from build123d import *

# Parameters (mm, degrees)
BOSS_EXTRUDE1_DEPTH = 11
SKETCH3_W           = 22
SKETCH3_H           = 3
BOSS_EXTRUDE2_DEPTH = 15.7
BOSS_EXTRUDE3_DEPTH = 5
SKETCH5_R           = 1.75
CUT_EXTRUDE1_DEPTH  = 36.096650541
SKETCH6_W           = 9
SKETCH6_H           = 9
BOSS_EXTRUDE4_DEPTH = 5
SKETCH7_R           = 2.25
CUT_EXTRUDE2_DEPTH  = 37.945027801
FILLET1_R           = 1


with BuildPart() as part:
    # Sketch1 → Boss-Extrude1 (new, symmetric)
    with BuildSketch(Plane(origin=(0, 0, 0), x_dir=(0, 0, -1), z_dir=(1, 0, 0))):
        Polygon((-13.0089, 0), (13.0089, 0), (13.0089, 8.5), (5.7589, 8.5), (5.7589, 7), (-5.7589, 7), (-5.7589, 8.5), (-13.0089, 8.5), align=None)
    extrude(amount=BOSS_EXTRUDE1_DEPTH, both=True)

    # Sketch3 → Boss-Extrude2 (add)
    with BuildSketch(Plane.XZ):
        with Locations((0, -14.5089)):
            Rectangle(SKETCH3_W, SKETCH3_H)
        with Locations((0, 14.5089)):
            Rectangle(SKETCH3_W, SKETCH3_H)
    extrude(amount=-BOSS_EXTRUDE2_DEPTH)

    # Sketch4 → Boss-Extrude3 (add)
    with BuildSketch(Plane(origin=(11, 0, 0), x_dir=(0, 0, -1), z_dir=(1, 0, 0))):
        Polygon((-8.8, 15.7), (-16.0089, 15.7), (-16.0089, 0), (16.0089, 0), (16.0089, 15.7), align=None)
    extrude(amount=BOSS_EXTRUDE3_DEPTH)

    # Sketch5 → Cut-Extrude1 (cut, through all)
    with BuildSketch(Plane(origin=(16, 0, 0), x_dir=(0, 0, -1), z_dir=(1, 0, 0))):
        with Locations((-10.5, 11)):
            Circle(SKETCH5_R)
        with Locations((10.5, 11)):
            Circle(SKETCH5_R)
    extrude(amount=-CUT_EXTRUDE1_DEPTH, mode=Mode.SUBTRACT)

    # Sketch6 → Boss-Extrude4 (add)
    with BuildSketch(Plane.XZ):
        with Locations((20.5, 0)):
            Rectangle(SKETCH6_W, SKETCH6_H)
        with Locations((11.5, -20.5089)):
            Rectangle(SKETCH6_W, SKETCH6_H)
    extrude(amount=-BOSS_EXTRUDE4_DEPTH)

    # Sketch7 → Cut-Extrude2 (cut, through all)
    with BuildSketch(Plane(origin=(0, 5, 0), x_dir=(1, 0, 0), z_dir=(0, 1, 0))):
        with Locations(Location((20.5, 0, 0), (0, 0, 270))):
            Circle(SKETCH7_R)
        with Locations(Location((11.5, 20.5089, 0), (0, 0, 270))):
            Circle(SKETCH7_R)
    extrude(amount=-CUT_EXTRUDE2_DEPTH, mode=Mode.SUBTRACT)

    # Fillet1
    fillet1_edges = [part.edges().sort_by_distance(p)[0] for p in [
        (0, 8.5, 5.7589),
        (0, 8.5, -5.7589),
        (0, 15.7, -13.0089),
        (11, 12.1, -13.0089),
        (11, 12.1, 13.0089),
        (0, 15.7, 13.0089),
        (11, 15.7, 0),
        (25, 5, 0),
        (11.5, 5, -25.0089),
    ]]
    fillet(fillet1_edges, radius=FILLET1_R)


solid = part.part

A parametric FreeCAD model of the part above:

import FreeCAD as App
import Part
import Sketcher

V = App.Vector


def edges_at(feature, points):
    """Names of the edges that pass closest to the given points."""
    edges = feature.Shape.Edges
    near = lambda p: min(range(len(edges)), key=lambda i: edges[i].distToShape(Part.Vertex(*p))[0])
    return sorted({f"Edge{near(p) + 1}" for p in points})

doc = App.newDocument("Part")
body = doc.addObject("PartDesign::Body", "Body")

sketch1 = body.newObject("Sketcher::SketchObject", "Sketch")
sketch1.AttachmentSupport = (doc.getObject("YZ_Plane"), [""])
sketch1.MapMode = "FlatFace"
sketch1.addGeometry([
    Part.LineSegment(V(0, 13, 0), V(0, -13, 0)),
    Part.LineSegment(V(0, -13, 0), V(8.5, -13, 0)),
    Part.LineSegment(V(8.5, -13, 0), V(8.5, -5.8, 0)),
    Part.LineSegment(V(8.5, -5.8, 0), V(7, -5.8, 0)),
    Part.LineSegment(V(7, -5.8, 0), V(7, 5.8, 0)),
    Part.LineSegment(V(7, 5.8, 0), V(8.5, 5.8, 0)),
    Part.LineSegment(V(8.5, 5.8, 0), V(8.5, 13, 0)),
    Part.LineSegment(V(8.5, 13, 0), V(0, 13, 0)),
], False)
sketch1.addConstraint([
    Sketcher.Constraint("Coincident", 0, 2, 1, 1),
    Sketcher.Constraint("Coincident", 1, 2, 2, 1),
    Sketcher.Constraint("Coincident", 2, 2, 3, 1),
    Sketcher.Constraint("Coincident", 3, 2, 4, 1),
    Sketcher.Constraint("Coincident", 4, 2, 5, 1),
    Sketcher.Constraint("Coincident", 5, 2, 6, 1),
    Sketcher.Constraint("Coincident", 6, 2, 7, 1),
    Sketcher.Constraint("Coincident", 7, 2, 0, 1),
    Sketcher.Constraint("Vertical", 0),
    Sketcher.Constraint("Horizontal", 1),
    Sketcher.Constraint("Vertical", 2),
    Sketcher.Constraint("Horizontal", 3),
    Sketcher.Constraint("Vertical", 4),
    Sketcher.Constraint("Horizontal", 5),
    Sketcher.Constraint("Vertical", 6),
    Sketcher.Constraint("Horizontal", 7),
    Sketcher.Constraint("Symmetric", 0, 2, 7, 2, -1, 1),
    Sketcher.Constraint("Symmetric", 2, 2, 5, 2, -1),
    Sketcher.Constraint("DistanceX", 1, 1, 1, 2, 8.5),
    Sketcher.Constraint("DistanceX", 3, 2, 3, 1, 1.5),
    Sketcher.Constraint("DistanceY", 2, 1, 2, 2, 7.25),
    Sketcher.Constraint("DistanceY", 0, 2, 0, 1, 26.0178),
])
pad1 = body.newObject("PartDesign::Pad", "Pad")
pad1.Profile = sketch1
pad1.Length = 22
pad1.Midplane = True

sketch2 = body.newObject("Sketcher::SketchObject", "Sketch001")
sketch2.AttachmentSupport = (doc.getObject("XZ_Plane"), [""])
sketch2.MapMode = "FlatFace"
sketch2.addGeometry([
    Part.LineSegment(V(-11, -13, 0), V(-11, -16, 0)),
    Part.LineSegment(V(-11, -16, 0), V(11, -16, 0)),
    Part.LineSegment(V(11, -16, 0), V(11, -13, 0)),
    Part.LineSegment(V(11, -13, 0), V(-11, -13, 0)),
    Part.LineSegment(V(-11, 16, 0), V(-11, 13, 0)),
    Part.LineSegment(V(-11, 13, 0), V(11, 13, 0)),
    Part.LineSegment(V(11, 13, 0), V(11, 16, 0)),
    Part.LineSegment(V(11, 16, 0), V(-11, 16, 0)),
], False)
sketch2.addConstraint([
    Sketcher.Constraint("Coincident", 0, 2, 1, 1),
    Sketcher.Constraint("Coincident", 1, 2, 2, 1),
    Sketcher.Constraint("Coincident", 2, 2, 3, 1),
    Sketcher.Constraint("Coincident", 3, 2, 0, 1),
    Sketcher.Constraint("Coincident", 4, 2, 5, 1),
    Sketcher.Constraint("Coincident", 5, 2, 6, 1),
    Sketcher.Constraint("Coincident", 6, 2, 7, 1),
    Sketcher.Constraint("Coincident", 7, 2, 4, 1),
    Sketcher.Constraint("Vertical", 0),
    Sketcher.Constraint("Horizontal", 1),
    Sketcher.Constraint("Vertical", 2),
    Sketcher.Constraint("Horizontal", 3),
    Sketcher.Constraint("Vertical", 4),
    Sketcher.Constraint("Horizontal", 5),
    Sketcher.Constraint("Vertical", 6),
    Sketcher.Constraint("Horizontal", 7),
    Sketcher.Constraint("Symmetric", 2, 2, 4, 2, -1, 1),
    Sketcher.Constraint("Symmetric", 0, 2, 6, 2, -1, 1),
    Sketcher.Constraint("Vertical", 3, 2, 4, 2),
    Sketcher.Constraint("DistanceX", 1, 1, 1, 2, 22.0),
    Sketcher.Constraint("DistanceY", 0, 2, 0, 1, 3.0),
    Sketcher.Constraint("DistanceY", 0, 2, -1, 1, 16.0089),
])
pad2 = body.newObject("PartDesign::Pad", "Pad001")
pad2.Profile = sketch2
pad2.Length = 15.7
pad2.Reversed = True

sketch3 = body.newObject("Sketcher::SketchObject", "Sketch002")
sketch3.AttachmentSupport = (doc.getObject("YZ_Plane"), [""])
sketch3.MapMode = "FlatFace"
sketch3.AttachmentOffset = App.Placement(V(0, 0, 11), App.Rotation())
sketch3.addGeometry([
    Part.LineSegment(V(16, 16, 0), V(0, 16, 0)),
    Part.LineSegment(V(0, 16, 0), V(0, -16, 0)),
    Part.LineSegment(V(0, -16, 0), V(16, -16, 0)),
    Part.LineSegment(V(16, -16, 0), V(16, 16, 0)),
], False)
sketch3.addConstraint([
    Sketcher.Constraint("Coincident", 0, 2, 1, 1),
    Sketcher.Constraint("Coincident", 1, 2, 2, 1),
    Sketcher.Constraint("Coincident", 2, 2, 3, 1),
    Sketcher.Constraint("Coincident", 3, 2, 0, 1),
    Sketcher.Constraint("Horizontal", 0),
    Sketcher.Constraint("Vertical", 1),
    Sketcher.Constraint("Horizontal", 2),
    Sketcher.Constraint("Vertical", 3),
    Sketcher.Constraint("Symmetric", 0, 2, 1, 2, -1, 1),
    Sketcher.Constraint("DistanceX", 0, 2, 0, 1, 15.7),
    Sketcher.Constraint("DistanceY", 1, 2, 1, 1, 32.0178),
])
pad3 = body.newObject("PartDesign::Pad", "Pad002")
pad3.Profile = sketch3
pad3.Length = 5

sketch4 = body.newObject("Sketcher::SketchObject", "Sketch003")
sketch4.AttachmentSupport = (doc.getObject("YZ_Plane"), [""])
sketch4.MapMode = "FlatFace"
sketch4.AttachmentOffset = App.Placement(V(0, 0, 16), App.Rotation())
sketch4.addGeometry([
    Part.Circle(V(11, 10.5, 0), V(0, 0, 1), 1.8),
    Part.Circle(V(11, -10.5, 0), V(0, 0, 1), 1.8),
], False)
sketch4.addConstraint([
    Sketcher.Constraint("Equal", 0, 1),
    Sketcher.Constraint("Symmetric", 0, 3, 1, 3, -1),
    Sketcher.Constraint("Diameter", 0, 3.5),
    Sketcher.Constraint("DistanceX", -1, 1, 0, 3, 11.0),
    Sketcher.Constraint("DistanceY", 1, 3, 0, 3, 21.0),
])
pocket1 = body.newObject("PartDesign::Pocket", "Pocket")
pocket1.Profile = sketch4
pocket1.Type = "ThroughAll"

sketch5 = body.newObject("Sketcher::SketchObject", "Sketch004")
sketch5.AttachmentSupport = (doc.getObject("XZ_Plane"), [""])
sketch5.MapMode = "FlatFace"
sketch5.addGeometry([
    Part.LineSegment(V(16, 4, 0), V(16, -4, 0)),
    Part.LineSegment(V(16, -4, 0), V(25, -4, 0)),
    Part.LineSegment(V(25, -4, 0), V(25, 4, 0)),
    Part.LineSegment(V(25, 4, 0), V(16, 4, 0)),
    Part.LineSegment(V(7, -16, 0), V(7, -25, 0)),
    Part.LineSegment(V(7, -25, 0), V(16, -25, 0)),
    Part.LineSegment(V(16, -25, 0), V(16, -16, 0)),
    Part.LineSegment(V(16, -16, 0), V(7, -16, 0)),
], False)
sketch5.addConstraint([
    Sketcher.Constraint("Coincident", 0, 2, 1, 1),
    Sketcher.Constraint("Coincident", 1, 2, 2, 1),
    Sketcher.Constraint("Coincident", 2, 2, 3, 1),
    Sketcher.Constraint("Coincident", 3, 2, 0, 1),
    Sketcher.Constraint("Coincident", 4, 2, 5, 1),
    Sketcher.Constraint("Coincident", 5, 2, 6, 1),
    Sketcher.Constraint("Coincident", 6, 2, 7, 1),
    Sketcher.Constraint("Coincident", 7, 2, 4, 1),
    Sketcher.Constraint("Vertical", 0),
    Sketcher.Constraint("Horizontal", 1),
    Sketcher.Constraint("Vertical", 2),
    Sketcher.Constraint("Horizontal", 3),
    Sketcher.Constraint("Vertical", 4),
    Sketcher.Constraint("Horizontal", 5),
    Sketcher.Constraint("Vertical", 6),
    Sketcher.Constraint("Horizontal", 7),
    Sketcher.Constraint("Vertical", 3, 2, 5, 2),
    Sketcher.Constraint("Equal", 3, 5),
    Sketcher.Constraint("Equal", 7, 0),
    Sketcher.Constraint("Equal", 2, 4),
    Sketcher.Constraint("DistanceX", 1, 1, 1, 2, 9.0),
    Sketcher.Constraint("DistanceX", -1, 1, 0, 2, 16.0),
    Sketcher.Constraint("DistanceY", 0, 2, -1, 1, 4.5),
    Sketcher.Constraint("DistanceY", 4, 2, -1, 1, 25.0089),
])
pad4 = body.newObject("PartDesign::Pad", "Pad003")
pad4.Profile = sketch5
pad4.Length = 5
pad4.Reversed = True

sketch6 = body.newObject("Sketcher::SketchObject", "Sketch005")
sketch6.AttachmentSupport = (doc.getObject("XZ_Plane"), [""])
sketch6.MapMode = "FlatFace"
sketch6.AttachmentOffset = App.Placement(V(0, 0, -5), App.Rotation())
sketch6.addGeometry([
    Part.Circle(V(20.5, 0, 0), V(0, 0, 1), 2.2),
    Part.Circle(V(11.5, -20.5, 0), V(0, 0, 1), 2.2),
], False)
sketch6.addConstraint([
    Sketcher.Constraint("Equal", 0, 1),
    Sketcher.Constraint("PointOnObject", 0, 3, -1),
    Sketcher.Constraint("Diameter", 0, 4.5),
    Sketcher.Constraint("DistanceX", 1, 3, 0, 3, 9.0),
    Sketcher.Constraint("DistanceX", -1, 1, 0, 3, 20.5),
    Sketcher.Constraint("DistanceY", 1, 3, -1, 1, 20.5089),
])
pocket2 = body.newObject("PartDesign::Pocket", "Pocket001")
pocket2.Profile = sketch6
pocket2.Type = "ThroughAll"
pocket2.Reversed = True
doc.recompute()

fillet = body.newObject("PartDesign::Fillet", "Fillet")
fillet.Base = (pocket2, edges_at(pocket2, [
    (0, 8.5, 5.759),
    (0, 8.5, -5.759),
    (0, 15.7, -13.009),
    (11, 12.1, -13.009),
    (11, 12.1, 13.009),
    (0, 15.7, 13.009),
    (11, 15.7, 0),
    (25, 5, 0),
    (11.5, 5, -25.009),
]))
fillet.Radius = 1

doc.recompute()
